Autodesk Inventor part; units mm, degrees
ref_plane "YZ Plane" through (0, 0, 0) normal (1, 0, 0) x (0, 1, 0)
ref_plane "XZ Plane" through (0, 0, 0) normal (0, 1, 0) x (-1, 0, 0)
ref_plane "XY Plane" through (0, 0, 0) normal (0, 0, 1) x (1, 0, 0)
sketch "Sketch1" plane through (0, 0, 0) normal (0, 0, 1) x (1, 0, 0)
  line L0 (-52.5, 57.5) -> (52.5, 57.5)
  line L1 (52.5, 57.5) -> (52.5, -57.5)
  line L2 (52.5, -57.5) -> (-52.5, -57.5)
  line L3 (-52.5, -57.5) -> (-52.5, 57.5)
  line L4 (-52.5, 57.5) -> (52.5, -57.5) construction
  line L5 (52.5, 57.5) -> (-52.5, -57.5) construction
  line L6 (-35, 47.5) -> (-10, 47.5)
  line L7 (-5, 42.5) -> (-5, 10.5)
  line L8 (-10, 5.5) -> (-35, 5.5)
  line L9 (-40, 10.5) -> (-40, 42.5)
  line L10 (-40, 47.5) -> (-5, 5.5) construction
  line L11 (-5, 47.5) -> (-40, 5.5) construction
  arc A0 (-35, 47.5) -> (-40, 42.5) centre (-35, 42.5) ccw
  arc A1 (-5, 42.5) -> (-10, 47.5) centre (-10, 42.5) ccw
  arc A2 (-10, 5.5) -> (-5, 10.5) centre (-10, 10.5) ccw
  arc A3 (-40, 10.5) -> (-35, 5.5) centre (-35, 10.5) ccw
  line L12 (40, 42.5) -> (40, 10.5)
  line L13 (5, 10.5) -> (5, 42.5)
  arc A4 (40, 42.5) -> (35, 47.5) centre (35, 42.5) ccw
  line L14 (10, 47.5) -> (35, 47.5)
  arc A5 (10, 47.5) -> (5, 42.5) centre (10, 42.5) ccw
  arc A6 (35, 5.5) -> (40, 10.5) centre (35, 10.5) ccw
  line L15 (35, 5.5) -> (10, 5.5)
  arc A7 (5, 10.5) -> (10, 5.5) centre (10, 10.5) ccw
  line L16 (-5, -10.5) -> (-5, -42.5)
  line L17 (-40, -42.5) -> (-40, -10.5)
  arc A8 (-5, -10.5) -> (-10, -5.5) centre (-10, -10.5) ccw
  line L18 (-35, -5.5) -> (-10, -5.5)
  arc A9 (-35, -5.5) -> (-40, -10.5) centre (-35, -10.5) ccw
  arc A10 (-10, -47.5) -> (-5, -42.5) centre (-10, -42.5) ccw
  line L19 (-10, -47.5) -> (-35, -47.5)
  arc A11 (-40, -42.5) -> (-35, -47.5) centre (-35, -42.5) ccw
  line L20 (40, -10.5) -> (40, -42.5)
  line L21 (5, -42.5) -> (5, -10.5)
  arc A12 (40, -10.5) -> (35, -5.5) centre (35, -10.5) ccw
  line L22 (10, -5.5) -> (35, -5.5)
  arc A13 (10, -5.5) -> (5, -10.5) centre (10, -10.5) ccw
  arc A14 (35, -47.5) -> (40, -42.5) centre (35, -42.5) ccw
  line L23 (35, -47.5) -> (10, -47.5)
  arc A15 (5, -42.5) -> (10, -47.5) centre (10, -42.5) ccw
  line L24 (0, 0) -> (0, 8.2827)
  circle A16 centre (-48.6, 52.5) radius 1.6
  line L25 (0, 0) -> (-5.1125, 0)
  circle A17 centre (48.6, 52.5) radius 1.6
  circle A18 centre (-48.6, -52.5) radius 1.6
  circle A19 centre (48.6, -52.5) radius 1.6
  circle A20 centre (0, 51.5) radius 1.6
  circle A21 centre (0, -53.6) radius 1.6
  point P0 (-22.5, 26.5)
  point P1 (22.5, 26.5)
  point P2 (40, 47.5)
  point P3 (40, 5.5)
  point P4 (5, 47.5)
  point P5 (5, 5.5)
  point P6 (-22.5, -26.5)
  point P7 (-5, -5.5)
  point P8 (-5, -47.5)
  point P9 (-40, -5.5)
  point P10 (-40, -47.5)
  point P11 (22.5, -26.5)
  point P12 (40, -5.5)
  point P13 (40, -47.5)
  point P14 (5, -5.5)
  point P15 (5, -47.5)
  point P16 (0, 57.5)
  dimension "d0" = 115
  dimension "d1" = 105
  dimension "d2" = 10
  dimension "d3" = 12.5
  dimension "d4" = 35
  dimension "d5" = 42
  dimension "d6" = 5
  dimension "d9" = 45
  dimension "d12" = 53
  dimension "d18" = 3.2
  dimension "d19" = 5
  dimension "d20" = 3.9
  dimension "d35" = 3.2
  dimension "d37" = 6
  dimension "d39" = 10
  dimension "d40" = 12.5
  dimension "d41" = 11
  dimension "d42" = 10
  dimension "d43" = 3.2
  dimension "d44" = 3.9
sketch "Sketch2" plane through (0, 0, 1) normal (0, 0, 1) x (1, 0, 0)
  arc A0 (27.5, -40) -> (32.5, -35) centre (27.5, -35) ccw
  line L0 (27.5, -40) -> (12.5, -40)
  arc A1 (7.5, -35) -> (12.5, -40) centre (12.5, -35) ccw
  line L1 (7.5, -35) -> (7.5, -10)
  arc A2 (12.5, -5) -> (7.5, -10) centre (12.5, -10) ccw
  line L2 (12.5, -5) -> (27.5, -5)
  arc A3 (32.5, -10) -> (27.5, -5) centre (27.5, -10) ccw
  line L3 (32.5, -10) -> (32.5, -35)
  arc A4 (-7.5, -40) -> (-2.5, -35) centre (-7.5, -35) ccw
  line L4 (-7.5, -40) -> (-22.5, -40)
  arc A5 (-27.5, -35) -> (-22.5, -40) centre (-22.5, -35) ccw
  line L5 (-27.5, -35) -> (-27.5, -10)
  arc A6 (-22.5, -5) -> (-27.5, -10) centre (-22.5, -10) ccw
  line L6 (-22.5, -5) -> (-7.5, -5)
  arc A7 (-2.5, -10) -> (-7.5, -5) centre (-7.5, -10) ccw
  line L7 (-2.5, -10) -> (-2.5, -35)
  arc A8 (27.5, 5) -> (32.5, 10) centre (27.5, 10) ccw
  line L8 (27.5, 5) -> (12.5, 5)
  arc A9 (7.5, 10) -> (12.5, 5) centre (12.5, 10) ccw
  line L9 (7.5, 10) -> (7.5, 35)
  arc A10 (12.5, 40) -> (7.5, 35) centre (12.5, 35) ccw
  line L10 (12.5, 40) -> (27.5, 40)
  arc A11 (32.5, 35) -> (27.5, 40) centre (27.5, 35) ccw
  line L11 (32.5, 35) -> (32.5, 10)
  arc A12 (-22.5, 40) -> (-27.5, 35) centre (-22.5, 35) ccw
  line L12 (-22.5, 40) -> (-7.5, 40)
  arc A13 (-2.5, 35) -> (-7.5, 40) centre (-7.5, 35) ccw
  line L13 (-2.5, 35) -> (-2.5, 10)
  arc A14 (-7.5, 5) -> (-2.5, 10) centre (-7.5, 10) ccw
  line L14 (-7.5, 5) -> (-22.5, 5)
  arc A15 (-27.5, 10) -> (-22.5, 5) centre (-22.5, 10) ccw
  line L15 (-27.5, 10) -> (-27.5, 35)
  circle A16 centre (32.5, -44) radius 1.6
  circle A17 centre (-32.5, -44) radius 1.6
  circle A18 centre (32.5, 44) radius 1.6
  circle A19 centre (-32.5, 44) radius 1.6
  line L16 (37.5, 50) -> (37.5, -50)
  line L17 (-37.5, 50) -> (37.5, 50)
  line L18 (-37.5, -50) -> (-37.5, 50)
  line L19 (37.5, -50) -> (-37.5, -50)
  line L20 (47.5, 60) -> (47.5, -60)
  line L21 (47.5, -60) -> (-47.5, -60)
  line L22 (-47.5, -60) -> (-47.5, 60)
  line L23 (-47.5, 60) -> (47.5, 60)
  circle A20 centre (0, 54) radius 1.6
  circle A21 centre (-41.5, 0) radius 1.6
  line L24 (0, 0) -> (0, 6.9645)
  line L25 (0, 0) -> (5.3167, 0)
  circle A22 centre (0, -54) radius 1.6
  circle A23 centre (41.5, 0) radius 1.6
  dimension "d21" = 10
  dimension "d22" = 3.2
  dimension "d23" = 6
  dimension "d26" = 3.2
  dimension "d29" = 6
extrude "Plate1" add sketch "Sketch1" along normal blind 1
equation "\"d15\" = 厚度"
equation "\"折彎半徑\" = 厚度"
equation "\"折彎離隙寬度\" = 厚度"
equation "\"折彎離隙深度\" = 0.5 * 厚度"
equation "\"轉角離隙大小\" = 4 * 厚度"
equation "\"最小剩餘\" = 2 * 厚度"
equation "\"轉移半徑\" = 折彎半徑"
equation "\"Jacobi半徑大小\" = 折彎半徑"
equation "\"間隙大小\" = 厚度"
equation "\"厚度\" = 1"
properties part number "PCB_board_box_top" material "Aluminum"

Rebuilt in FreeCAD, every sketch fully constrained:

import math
import FreeCAD as App
import Part
import Sketcher

V = App.Vector
Q = App.Units.Quantity

doc = App.newDocument("Part")
params = doc.addObject("Spreadsheet::Sheet", "Params")
for row, (alias, value) in enumerate([
    ("sketch1_radius", "5 mm"),
    ("sketch1_diameter", "3.2 mm"),
    ("sketch1_width", "105 mm"),
    ("sketch1_height", "115 mm"),
    ("pad1_length", "1 mm"),
], start=1):
    params.set(f"A{row}", alias)
    params.set(f"B{row}", "=" + value)
    params.setAlias(f"B{row}", alias)

body = doc.addObject("PartDesign::Body", "Body")

# Sketch on XY plane
sketch1 = doc.addObject("Sketcher::SketchObject", "Sketch")
body.addObject(sketch1)
sketch1.AttachmentSupport = (doc.XY_Plane, [""])
sketch1.MapMode = "FlatFace"
sketch1.addGeometry([
    Part.LineSegment(V(52.5, 57.5, 0), V(-52.5, 57.5, 0)),  # 0
    Part.LineSegment(V(-52.5, 57.5, 0), V(-52.5, -57.5, 0)),  # 1
    Part.LineSegment(V(-52.5, -57.5, 0), V(52.5, -57.5, 0)),  # 2
    Part.LineSegment(V(52.5, -57.5, 0), V(52.5, 57.5, 0)),  # 3
    Part.Circle(V(-48.6, -52.5, 0), V(0, 0, 1), 1.6),  # 4
    Part.ArcOfCircle(Part.Circle(V(-10, -10.5, 0), V(0, 0, 1), 5), math.radians(0), math.radians(90)),  # 5
    Part.LineSegment(V(-5, -10.5, 0), V(-5, -42.5, 0)),  # 6
    Part.ArcOfCircle(Part.Circle(V(-10, -42.5, 0), V(0, 0, 1), 5), math.radians(-90), math.radians(0)),  # 7
    Part.LineSegment(V(-10, -47.5, 0), V(-35, -47.5, 0)),  # 8
    Part.ArcOfCircle(Part.Circle(V(-35, -42.5, 0), V(0, 0, 1), 5), math.radians(180), math.radians(270)),  # 9
    Part.LineSegment(V(-40, -42.5, 0), V(-40, -10.5, 0)),  # 10
    Part.ArcOfCircle(Part.Circle(V(-35, -10.5, 0), V(0, 0, 1), 5), math.radians(90), math.radians(180)),  # 11
    Part.LineSegment(V(-35, -5.5, 0), V(-10, -5.5, 0)),  # 12
    Part.Circle(V(0, -53.6, 0), V(0, 0, 1), 1.6),  # 13
    Part.Circle(V(48.6, -52.5, 0), V(0, 0, 1), 1.6),  # 14
    Part.ArcOfCircle(Part.Circle(V(35, -10.5, 0), V(0, 0, 1), 5), math.radians(0), math.radians(90)),  # 15
    Part.LineSegment(V(40, -10.5, 0), V(40, -42.5, 0)),  # 16
    Part.ArcOfCircle(Part.Circle(V(35, -42.5, 0), V(0, 0, 1), 5), math.radians(-90), math.radians(0)),  # 17
    Part.LineSegment(V(35, -47.5, 0), V(10, -47.5, 0)),  # 18
    Part.ArcOfCircle(Part.Circle(V(10, -42.5, 0), V(0, 0, 1), 5), math.radians(180), math.radians(270)),  # 19
    Part.LineSegment(V(5, -42.5, 0), V(5, -10.5, 0)),  # 20
    Part.ArcOfCircle(Part.Circle(V(10, -10.5, 0), V(0, 0, 1), 5), math.radians(90), math.radians(180)),  # 21
    Part.LineSegment(V(10, -5.5, 0), V(35, -5.5, 0)),  # 22
    Part.ArcOfCircle(Part.Circle(V(-35, 42.5, 0), V(0, 0, 1), 5), math.radians(90), math.radians(180)),  # 23
    Part.LineSegment(V(-35, 47.5, 0), V(-10, 47.5, 0)),  # 24
    Part.ArcOfCircle(Part.Circle(V(-10, 42.5, 0), V(0, 0, 1), 5), math.radians(0), math.radians(90)),  # 25
    Part.LineSegment(V(-5, 42.5, 0), V(-5, 10.5, 0)),  # 26
    Part.ArcOfCircle(Part.Circle(V(-10, 10.5, 0), V(0, 0, 1), 5), math.radians(-90), math.radians(0)),  # 27
    Part.LineSegment(V(-10, 5.5, 0), V(-35, 5.5, 0)),  # 28
    Part.ArcOfCircle(Part.Circle(V(-35, 10.5, 0), V(0, 0, 1), 5), math.radians(180), math.radians(270)),  # 29
    Part.LineSegment(V(-40, 10.5, 0), V(-40, 42.5, 0)),  # 30
    Part.Circle(V(-48.6, 52.5, 0), V(0, 0, 1), 1.6),  # 31
    Part.ArcOfCircle(Part.Circle(V(35, 42.5, 0), V(0, 0, 1), 5), math.radians(0), math.radians(90)),  # 32
    Part.LineSegment(V(40, 42.5, 0), V(40, 10.5, 0)),  # 33
    Part.ArcOfCircle(Part.Circle(V(35, 10.5, 0), V(0, 0, 1), 5), math.radians(-90), math.radians(0)),  # 34
    Part.LineSegment(V(35, 5.5, 0), V(10, 5.5, 0)),  # 35
    Part.ArcOfCircle(Part.Circle(V(10, 10.5, 0), V(0, 0, 1), 5), math.radians(180), math.radians(270)),  # 36
    Part.LineSegment(V(5, 10.5, 0), V(5, 42.5, 0)),  # 37
    Part.ArcOfCircle(Part.Circle(V(10, 42.5, 0), V(0, 0, 1), 5), math.radians(90), math.radians(180)),  # 38
    Part.LineSegment(V(10, 47.5, 0), V(35, 47.5, 0)),  # 39
    Part.Circle(V(0, 51.5, 0), V(0, 0, 1), 1.6),  # 40
    Part.Circle(V(48.6, 52.5, 0), V(0, 0, 1), 1.6),  # 41
], False)
sketch1.addConstraint([
    Sketcher.Constraint("Coincident", 0, 2, 1, 1),
    Sketcher.Constraint("Coincident", 1, 2, 2, 1),
    Sketcher.Constraint("Coincident", 2, 2, 3, 1),
    Sketcher.Constraint("Coincident", 3, 2, 0, 1),
    Sketcher.Constraint("Tangent", 5, 1, 6, 1),
    Sketcher.Constraint("Tangent", 6, 2, 7, 2),
    Sketcher.Constraint("Tangent", 7, 1, 8, 1),
    Sketcher.Constraint("Tangent", 8, 2, 9, 2),
    Sketcher.Constraint("Tangent", 9, 1, 10, 1),
    Sketcher.Constraint("Tangent", 10, 2, 11, 2),
    Sketcher.Constraint("Tangent", 11, 1, 12, 1),
    Sketcher.Constraint("Tangent", 12, 2, 5, 2),
    Sketcher.Constraint("Tangent", 15, 1, 16, 1),
    Sketcher.Constraint("Tangent", 16, 2, 17, 2),
    Sketcher.Constraint("Tangent", 17, 1, 18, 1),
    Sketcher.Constraint("Tangent", 18, 2, 19, 2),
    Sketcher.Constraint("Tangent", 19, 1, 20, 1),
    Sketcher.Constraint("Tangent", 20, 2, 21, 2),
    Sketcher.Constraint("Tangent", 21, 1, 22, 1),
    Sketcher.Constraint("Tangent", 22, 2, 15, 2),
    Sketcher.Constraint("Tangent", 23, 1, 24, 1),
    Sketcher.Constraint("Tangent", 24, 2, 25, 2),
    Sketcher.Constraint("Tangent", 25, 1, 26, 1),
    Sketcher.Constraint("Tangent", 26, 2, 27, 2),
    Sketcher.Constraint("Tangent", 27, 1, 28, 1),
    Sketcher.Constraint("Tangent", 28, 2, 29, 2),
    Sketcher.Constraint("Tangent", 29, 1, 30, 1),
    Sketcher.Constraint("Tangent", 30, 2, 23, 2),
    Sketcher.Constraint("Tangent", 32, 1, 33, 1),
    Sketcher.Constraint("Tangent", 33, 2, 34, 2),
    Sketcher.Constraint("Tangent", 34, 1, 35, 1),
    Sketcher.Constraint("Tangent", 35, 2, 36, 2),
    Sketcher.Constraint("Tangent", 36, 1, 37, 1),
    Sketcher.Constraint("Tangent", 37, 2, 38, 2),
    Sketcher.Constraint("Tangent", 38, 1, 39, 1),
    Sketcher.Constraint("Tangent", 39, 2, 32, 2),
    Sketcher.Constraint("Horizontal", 0),
    Sketcher.Constraint("Vertical", 1),
    Sketcher.Constraint("Horizontal", 2),
    Sketcher.Constraint("Vertical", 3),
    Sketcher.Constraint("Vertical", 6),
    Sketcher.Constraint("Horizontal", 8),
    Sketcher.Constraint("Vertical", 10),
    Sketcher.Constraint("Horizontal", 12),
    Sketcher.Constraint("Vertical", 16),
    Sketcher.Constraint("Horizontal", 18),
    Sketcher.Constraint("Vertical", 20),
    Sketcher.Constraint("Horizontal", 22),
    Sketcher.Constraint("Horizontal", 24),
    Sketcher.Constraint("Vertical", 26),
    Sketcher.Constraint("Horizontal", 28),
    Sketcher.Constraint("Vertical", 30),
    Sketcher.Constraint("Vertical", 33),
    Sketcher.Constraint("Horizontal", 35),
    Sketcher.Constraint("Vertical", 37),
    Sketcher.Constraint("Horizontal", 39),
    Sketcher.Constraint("Equal", 5, 7),
    Sketcher.Constraint("Equal", 7, 9),
    Sketcher.Constraint("Equal", 9, 11),
    Sketcher.Constraint("Equal", 4, 13),
    Sketcher.Constraint("Equal", 13, 14),
    Sketcher.Constraint("Equal", 11, 15),
    Sketcher.Constraint("Equal", 15, 17),
    Sketcher.Constraint("Equal", 17, 19),
    Sketcher.Constraint("Equal", 19, 21),
    Sketcher.Constraint("Equal", 21, 23),
    Sketcher.Constraint("Equal", 23, 25),
    Sketcher.Constraint("Equal", 25, 27),
    Sketcher.Constraint("Equal", 27, 29),
    Sketcher.Constraint("Equal", 14, 31),
    Sketcher.Constraint("Equal", 29, 32),
    Sketcher.Constraint("Equal", 32, 34),
    Sketcher.Constraint("Equal", 34, 36),
    Sketcher.Constraint("Equal", 36, 38),
    Sketcher.Constraint("Equal", 31, 40),
    Sketcher.Constraint("Equal", 40, 41),
    Sketcher.Constraint("Symmetric", 17, 3, 23, 3, -1, 1),
    Sketcher.Constraint("Symmetric", 21, 3, 27, 3, -1, 1),
    Sketcher.Constraint("Symmetric", 14, 3, 31, 3, -1, 1),
    Sketcher.Constraint("Symmetric", 9, 3, 32, 3, -1, 1),
    Sketcher.Constraint("Symmetric", 5, 3, 36, 3, -1, 1),
    Sketcher.Constraint("Symmetric", 4, 3, 41, 3, -1, 1),
    Sketcher.Constraint("Symmetric", 0, 2, 2, 2, -1, 1),
    Sketcher.Constraint("Symmetric", 4, 3, 14, 3, -2),
    Sketcher.Constraint("Symmetric", 11, 3, 15, 3, -2),
    Sketcher.Constraint("Symmetric", 7, 3, 19, 3, -2),
    Sketcher.Constraint("PointOnObject", 13, 3, -2),
    Sketcher.Constraint("PointOnObject", 40, 3, -2),
    Sketcher.Constraint("Radius", 5, Q("5 mm")),
    Sketcher.Constraint("Diameter", 4, Q("3.2 mm")),
    Sketcher.Constraint("DistanceX", 0, 2, 0, 1, Q("105 mm")),
    Sketcher.Constraint("DistanceY", 1, 2, 1, 1, Q("115 mm")),
    Sketcher.Constraint("DistanceX", 5, 3, -1, 1, Q("10 mm")),
    Sketcher.Constraint("DistanceX", 9, 3, -1, 1, Q("35 mm")),
    Sketcher.Constraint("DistanceY", 4, 3, 5, 3, Q("42 mm")),
    Sketcher.Constraint("DistanceY", 4, 3, 7, 3, Q("10 mm")),
    Sketcher.Constraint("DistanceY", 11, 3, 23, 3, Q("53 mm")),
    Sketcher.Constraint("DistanceY", 40, 3, 0, 2, Q("6 mm")),
    Sketcher.Constraint("DistanceX", 0, 2, 31, 3, Q("3.9 mm")),
    Sketcher.Constraint("DistanceY", 1, 2, 13, 3, Q("3.9 mm")),
])
sketch1.setExpression("Constraints[88]", "Params.sketch1_radius")
sketch1.setExpression("Constraints[89]", "Params.sketch1_diameter")
sketch1.setExpression("Constraints[90]", "Params.sketch1_width")
sketch1.setExpression("Constraints[91]", "Params.sketch1_height")
pad1 = doc.addObject("PartDesign::Pad", "Pad")
body.addObject(pad1)
pad1.Profile = sketch1
pad1.setExpression("Length", "Params.pad1_length")

doc.recompute()
